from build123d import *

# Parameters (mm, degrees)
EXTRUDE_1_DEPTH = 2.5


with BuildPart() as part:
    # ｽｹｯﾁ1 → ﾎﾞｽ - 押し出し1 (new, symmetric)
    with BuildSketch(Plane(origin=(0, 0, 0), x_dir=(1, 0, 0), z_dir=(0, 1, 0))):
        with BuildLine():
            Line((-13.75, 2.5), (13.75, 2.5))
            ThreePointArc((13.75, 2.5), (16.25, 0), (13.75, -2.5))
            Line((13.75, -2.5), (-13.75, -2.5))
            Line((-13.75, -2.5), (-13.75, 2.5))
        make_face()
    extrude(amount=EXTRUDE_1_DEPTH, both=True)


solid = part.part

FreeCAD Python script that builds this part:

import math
import FreeCAD as App
import Part
import Sketcher

V = App.Vector

doc = App.newDocument("Part")
body = doc.addObject("PartDesign::Body", "Body")

# Sketch on XZ plane
sketch1 = body.newObject("Sketcher::SketchObject", "Sketch")
sketch1.AttachmentSupport = (doc.getObject("XZ_Plane"), [""])
sketch1.MapMode = "FlatFace"
sketch1.addGeometry(Part.LineSegment(V(13.8, -2.5, 0), V(-13.8, -2.5, 0)), False)
sketch1.addGeometry(Part.LineSegment(V(-13.8, -2.5, 0), V(-13.8, 2.5, 0)), False)
sketch1.addGeometry(Part.LineSegment(V(-13.8, 2.5, 0), V(13.8, 2.5, 0)), False)
sketch1.addGeometry(Part.ArcOfCircle(Part.Circle(V(13.8, 0, 0), V(0, 0, 1), 2.5), math.radians(-90), math.radians(90)), False)
sketch1.addConstraint(Sketcher.Constraint("Coincident", 0, 2, 1, 1))
sketch1.addConstraint(Sketcher.Constraint("Coincident", 1, 2, 2, 1))
sketch1.addConstraint(Sketcher.Constraint("Tangent", 2, 2, 3, 2))
sketch1.addConstraint(Sketcher.Constraint("Tangent", 3, 1, 0, 1))
sketch1.addConstraint(Sketcher.Constraint("Horizontal", 0))
sketch1.addConstraint(Sketcher.Constraint("Vertical", 1))
sketch1.addConstraint(Sketcher.Constraint("Horizontal", 2))
sketch1.addConstraint(Sketcher.Constraint("Symmetric", 0, 2, 2, 2, -1, 1))
sketch1.addConstraint(Sketcher.Constraint("Radius", 3, 2.5))
sketch1.addConstraint(Sketcher.Constraint("DistanceX", 0, 2, 0, 1, 27.5))
pad1 = body.newObject("PartDesign::Pad", "Pad")
pad1.Profile = sketch1
pad1.Length = 5
pad1.Midplane = True

doc.recompute()
